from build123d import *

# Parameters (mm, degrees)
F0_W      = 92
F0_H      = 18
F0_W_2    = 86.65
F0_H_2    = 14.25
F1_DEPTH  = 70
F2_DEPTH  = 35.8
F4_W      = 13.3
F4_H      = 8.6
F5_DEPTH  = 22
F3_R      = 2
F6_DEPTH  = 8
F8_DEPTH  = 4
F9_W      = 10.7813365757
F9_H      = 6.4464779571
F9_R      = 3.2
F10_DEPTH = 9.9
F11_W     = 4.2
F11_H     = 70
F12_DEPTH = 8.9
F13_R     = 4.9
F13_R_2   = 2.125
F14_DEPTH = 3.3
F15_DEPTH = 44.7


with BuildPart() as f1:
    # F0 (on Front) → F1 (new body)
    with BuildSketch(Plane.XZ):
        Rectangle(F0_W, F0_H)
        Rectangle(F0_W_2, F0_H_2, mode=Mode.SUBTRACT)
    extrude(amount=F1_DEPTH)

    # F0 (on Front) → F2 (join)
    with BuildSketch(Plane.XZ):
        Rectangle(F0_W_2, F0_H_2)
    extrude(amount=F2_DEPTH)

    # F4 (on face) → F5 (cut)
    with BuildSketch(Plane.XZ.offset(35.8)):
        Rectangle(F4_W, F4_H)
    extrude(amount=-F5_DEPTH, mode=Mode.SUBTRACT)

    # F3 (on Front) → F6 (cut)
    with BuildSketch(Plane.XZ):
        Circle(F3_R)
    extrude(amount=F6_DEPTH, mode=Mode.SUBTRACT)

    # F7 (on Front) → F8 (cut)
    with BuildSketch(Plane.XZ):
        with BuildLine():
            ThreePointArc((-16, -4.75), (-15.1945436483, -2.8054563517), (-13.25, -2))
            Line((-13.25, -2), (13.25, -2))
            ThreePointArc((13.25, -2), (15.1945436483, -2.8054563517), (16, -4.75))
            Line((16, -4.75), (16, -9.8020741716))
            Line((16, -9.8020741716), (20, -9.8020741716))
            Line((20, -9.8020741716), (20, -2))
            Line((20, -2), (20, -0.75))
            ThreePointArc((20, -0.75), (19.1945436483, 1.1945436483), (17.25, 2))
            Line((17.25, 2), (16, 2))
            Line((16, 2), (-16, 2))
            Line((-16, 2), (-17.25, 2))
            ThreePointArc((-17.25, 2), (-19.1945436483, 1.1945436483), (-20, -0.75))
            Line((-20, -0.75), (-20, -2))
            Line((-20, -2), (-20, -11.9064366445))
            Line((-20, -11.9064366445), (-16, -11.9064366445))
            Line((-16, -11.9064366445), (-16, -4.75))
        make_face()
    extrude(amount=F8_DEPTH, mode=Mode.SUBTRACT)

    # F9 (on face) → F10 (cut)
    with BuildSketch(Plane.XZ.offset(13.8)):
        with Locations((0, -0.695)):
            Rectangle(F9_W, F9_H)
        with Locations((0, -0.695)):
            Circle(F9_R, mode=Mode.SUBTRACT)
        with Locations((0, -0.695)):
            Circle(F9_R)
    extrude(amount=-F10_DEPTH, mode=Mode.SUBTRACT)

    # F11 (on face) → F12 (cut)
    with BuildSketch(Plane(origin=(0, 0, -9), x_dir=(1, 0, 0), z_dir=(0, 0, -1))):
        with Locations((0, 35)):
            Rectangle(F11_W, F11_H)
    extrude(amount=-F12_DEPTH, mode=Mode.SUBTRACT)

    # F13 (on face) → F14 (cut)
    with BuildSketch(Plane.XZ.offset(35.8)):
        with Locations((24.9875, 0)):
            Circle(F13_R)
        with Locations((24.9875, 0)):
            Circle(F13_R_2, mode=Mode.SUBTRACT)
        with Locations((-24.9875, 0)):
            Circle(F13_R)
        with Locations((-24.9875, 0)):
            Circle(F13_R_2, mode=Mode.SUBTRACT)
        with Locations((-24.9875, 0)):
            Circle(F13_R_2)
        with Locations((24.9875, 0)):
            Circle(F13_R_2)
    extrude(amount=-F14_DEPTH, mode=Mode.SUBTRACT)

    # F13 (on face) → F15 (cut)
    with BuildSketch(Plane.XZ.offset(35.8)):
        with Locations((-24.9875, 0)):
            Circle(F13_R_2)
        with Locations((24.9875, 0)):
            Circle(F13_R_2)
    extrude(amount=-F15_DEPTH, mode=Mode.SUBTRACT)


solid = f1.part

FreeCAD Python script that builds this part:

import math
import FreeCAD as App
import Part
import Sketcher

V = App.Vector
Q = App.Units.Quantity

doc = App.newDocument("Part")
params = doc.addObject("Spreadsheet::Sheet", "Params")
for row, (alias, value) in enumerate([
    ("sketch1_width", "92 mm"),
    ("sketch1_height", "18 mm"),
    ("sketch1_width2", "86.65 mm"),
    ("sketch1_height2", "14.25 mm"),
    ("pad1_length", "70 mm"),
    ("sketch2_width", "86.65 mm"),
    ("sketch2_height", "14.25 mm"),
    ("pad2_length", "35.8 mm"),
    ("sketch3_width", "13.3 mm"),
    ("sketch3_height", "8.6 mm"),
    ("pocket1_length", "22 mm"),
    ("sketch4_diameter", "4 mm"),
    ("pocket2_length", "8 mm"),
    ("sketch5_width", "4 mm"),
    ("sketch5_radius", "2.75 mm"),
    ("sketch5_width2", "26.5 mm"),
    ("pocket3_length", "4 mm"),
    ("pocket4_length", "9.9 mm"),
    ("sketch7_height", "70 mm"),
    ("sketch7_width", "4.2 mm"),
    ("pocket5_length", "8.9 mm"),
    ("sketch8_diameter", "9.8 mm"),
    ("pocket6_length", "3.3 mm"),
    ("sketch9_diameter", "4.25 mm"),
    ("pocket7_length", "44.7 mm"),
], start=1):
    params.set(f"A{row}", alias)
    params.set(f"B{row}", "=" + value)
    params.setAlias(f"B{row}", alias)

body = doc.addObject("PartDesign::Body", "Body")

# Sketch on XZ plane
sketch1 = body.newObject("Sketcher::SketchObject", "Sketch")
sketch1.AttachmentSupport = (doc.getObject("XZ_Plane"), [""])
sketch1.MapMode = "FlatFace"
sketch1.addGeometry([
    Part.LineSegment(V(-46, 9, 0), V(-46, -9, 0)),  # 0
    Part.LineSegment(V(-46, -9, 0), V(46, -9, 0)),  # 1
    Part.LineSegment(V(46, -9, 0), V(46, 9, 0)),  # 2
    Part.LineSegment(V(46, 9, 0), V(-46, 9, 0)),  # 3
    Part.LineSegment(V(43, -7, 0), V(-43, -7, 0)),  # 4
    Part.LineSegment(V(-43, -7, 0), V(-43, 7, 0)),  # 5
    Part.LineSegment(V(-43, 7, 0), V(43, 7, 0)),  # 6
    Part.LineSegment(V(43, 7, 0), V(43, -7, 0)),  # 7
], False)
sketch1.addConstraint([
    Sketcher.Constraint("Coincident", 0, 2, 1, 1),
    Sketcher.Constraint("Coincident", 1, 2, 2, 1),
    Sketcher.Constraint("Coincident", 2, 2, 3, 1),
    Sketcher.Constraint("Coincident", 3, 2, 0, 1),
    Sketcher.Constraint("Coincident", 4, 2, 5, 1),
    Sketcher.Constraint("Coincident", 5, 2, 6, 1),
    Sketcher.Constraint("Coincident", 6, 2, 7, 1),
    Sketcher.Constraint("Coincident", 7, 2, 4, 1),
    Sketcher.Constraint("Vertical", 0),
    Sketcher.Constraint("Horizontal", 1),
    Sketcher.Constraint("Vertical", 2),
    Sketcher.Constraint("Horizontal", 3),
    Sketcher.Constraint("Horizontal", 4),
    Sketcher.Constraint("Vertical", 5),
    Sketcher.Constraint("Horizontal", 6),
    Sketcher.Constraint("Vertical", 7),
    Sketcher.Constraint("Symmetric", 0, 2, 2, 2, -1, 1),
    Sketcher.Constraint("Symmetric", 4, 2, 6, 2, -1, 1),
    Sketcher.Constraint("DistanceX", 1, 1, 1, 2, Q("92 mm")),
    Sketcher.Constraint("DistanceY", 0, 2, 0, 1, Q("18 mm")),
    Sketcher.Constraint("DistanceX", 4, 2, 4, 1, Q("86.65 mm")),
    Sketcher.Constraint("DistanceY", 5, 1, 5, 2, Q("14.25 mm")),
])
sketch1.setExpression("Constraints[18]", "Params.sketch1_width")
sketch1.setExpression("Constraints[19]", "Params.sketch1_height")
sketch1.setExpression("Constraints[20]", "Params.sketch1_width2")
sketch1.setExpression("Constraints[21]", "Params.sketch1_height2")
pad1 = body.newObject("PartDesign::Pad", "Pad")
pad1.Profile = sketch1
pad1.setExpression("Length", "Params.pad1_length")

# Sketch on XZ plane
sketch2 = body.newObject("Sketcher::SketchObject", "Sketch001")
sketch2.AttachmentSupport = (doc.getObject("XZ_Plane"), [""])
sketch2.MapMode = "FlatFace"
sketch2.addGeometry([
    Part.LineSegment(V(-43, 7, 0), V(-43, -7, 0)),
    Part.LineSegment(V(-43, -7, 0), V(43, -7, 0)),
    Part.LineSegment(V(43, -7, 0), V(43, 7, 0)),
    Part.LineSegment(V(43, 7, 0), V(-43, 7, 0)),
], False)
sketch2.addConstraint([
    Sketcher.Constraint("Coincident", 0, 2, 1, 1),
    Sketcher.Constraint("Coincident", 1, 2, 2, 1),
    Sketcher.Constraint("Coincident", 2, 2, 3, 1),
    Sketcher.Constraint("Coincident", 3, 2, 0, 1),
    Sketcher.Constraint("Vertical", 0),
    Sketcher.Constraint("Horizontal", 1),
    Sketcher.Constraint("Vertical", 2),
    Sketcher.Constraint("Horizontal", 3),
    Sketcher.Constraint("Symmetric", 0, 2, 2, 2, -1, 1),
    Sketcher.Constraint("DistanceX", 1, 1, 1, 2, Q("86.65 mm")),
    Sketcher.Constraint("DistanceY", 0, 2, 0, 1, Q("14.25 mm")),
])
sketch2.setExpression("Constraints[9]", "Params.sketch2_width")
sketch2.setExpression("Constraints[10]", "Params.sketch2_height")
pad2 = body.newObject("PartDesign::Pad", "Pad001")
pad2.Profile = sketch2
pad2.setExpression("Length", "Params.pad2_length")

# Sketch on XZ plane
sketch3 = body.newObject("Sketcher::SketchObject", "Sketch002")
sketch3.AttachmentSupport = (doc.getObject("XZ_Plane"), [""])
sketch3.MapMode = "FlatFace"
sketch3.AttachmentOffset = App.Placement(V(0, 0, 35.8), App.Rotation())
sketch3.addGeometry([
    Part.LineSegment(V(-7, 4, 0), V(-7, -4, 0)),
    Part.LineSegment(V(-7, -4, 0), V(7, -4, 0)),
    Part.LineSegment(V(7, -4, 0), V(7, 4, 0)),
    Part.LineSegment(V(7, 4, 0), V(-7, 4, 0)),
], False)
sketch3.addConstraint([
    Sketcher.Constraint("Coincident", 0, 2, 1, 1),
    Sketcher.Constraint("Coincident", 1, 2, 2, 1),
    Sketcher.Constraint("Coincident", 2, 2, 3, 1),
    Sketcher.Constraint("Coincident", 3, 2, 0, 1),
    Sketcher.Constraint("Vertical", 0),
    Sketcher.Constraint("Horizontal", 1),
    Sketcher.Constraint("Vertical", 2),
    Sketcher.Constraint("Horizontal", 3),
    Sketcher.Constraint("Symmetric", 0, 2, 2, 2, -1, 1),
    Sketcher.Constraint("DistanceX", 1, 1, 1, 2, Q("13.3 mm")),
    Sketcher.Constraint("DistanceY", 0, 2, 0, 1, Q("8.6 mm")),
])
sketch3.setExpression("Constraints[9]", "Params.sketch3_width")
sketch3.setExpression("Constraints[10]", "Params.sketch3_height")
pocket1 = body.newObject("PartDesign::Pocket", "Pocket")
pocket1.Profile = sketch3
pocket1.setExpression("Length", "Params.pocket1_length")

# Sketch on XZ plane
sketch4 = body.newObject("Sketcher::SketchObject", "Sketch003")
sketch4.AttachmentSupport = (doc.getObject("XZ_Plane"), [""])
sketch4.MapMode = "FlatFace"
sketch4.addGeometry(Part.Circle(V(0, 0, 0), V(0, 0, 1), 2), False)
sketch4.addConstraint([
    Sketcher.Constraint("Coincident", 0, 3, -1, 1),
    Sketcher.Constraint("Diameter", 0, Q("4 mm")),
])
sketch4.setExpression("Constraints[1]", "Params.sketch4_diameter")
pocket2 = body.newObject("PartDesign::Pocket", "Pocket001")
pocket2.Profile = sketch4
pocket2.setExpression("Length", "Params.pocket2_length")
pocket2.Reversed = True

# Sketch on XZ plane
sketch5 = body.newObject("Sketcher::SketchObject", "Sketch004")
sketch5.AttachmentSupport = (doc.getObject("XZ_Plane"), [""])
sketch5.MapMode = "FlatFace"
sketch5.addGeometry([
    Part.ArcOfCircle(Part.Circle(V(-13.2, -4.8, 0), V(0, 0, 1), 2.8), math.radians(90), math.radians(180)),  # 0
    Part.LineSegment(V(-13.2, -2, 0), V(13.2, -2, 0)),  # 1
    Part.ArcOfCircle(Part.Circle(V(13.2, -4.8, 0), V(0, 0, 1), 2.8), math.radians(0), math.radians(90)),  # 2
    Part.LineSegment(V(16, -4.8, 0), V(16, -9.8, 0)),  # 3
    Part.LineSegment(V(16, -9.8, 0), V(20, -9.8, 0)),  # 4
    Part.LineSegment(V(20, -9.8, 0), V(20, -0.8, 0)),  # 5
    Part.ArcOfCircle(Part.Circle(V(17.2, -0.8, 0), V(0, 0, 1), 2.8), math.radians(0), math.radians(90)),  # 6
    Part.LineSegment(V(17.2, 2, 0), V(-17.2, 2, 0)),  # 7
    Part.ArcOfCircle(Part.Circle(V(-17.2, -0.8, 0), V(0, 0, 1), 2.8), math.radians(90), math.radians(180)),  # 8
    Part.LineSegment(V(-20, -0.8, 0), V(-20, -11.9, 0)),  # 9
    Part.LineSegment(V(-20, -11.9, 0), V(-16, -11.9, 0)),  # 10
    Part.LineSegment(V(-16, -11.9, 0), V(-16, -4.8, 0)),  # 11
], False)
sketch5.addConstraint([
    Sketcher.Constraint("Tangent", 0, 1, 1, 1),
    Sketcher.Constraint("Tangent", 1, 2, 2, 2),
    Sketcher.Constraint("Tangent", 2, 1, 3, 1),
    Sketcher.Constraint("Coincident", 3, 2, 4, 1),
    Sketcher.Constraint("Coincident", 4, 2, 5, 1),
    Sketcher.Constraint("Tangent", 5, 2, 6, 1),
    Sketcher.Constraint("Tangent", 6, 2, 7, 1),
    Sketcher.Constraint("Tangent", 7, 2, 8, 1),
    Sketcher.Constraint("Tangent", 8, 2, 9, 1),
    Sketcher.Constraint("Coincident", 9, 2, 10, 1),
    Sketcher.Constraint("Coincident", 10, 2, 11, 1),
    Sketcher.Constraint("Tangent", 11, 2, 0, 2),
    Sketcher.Constraint("Horizontal", 1),
    Sketcher.Constraint("Vertical", 3),
    Sketcher.Constraint("Horizontal", 4),
    Sketcher.Constraint("Vertical", 5),
    Sketcher.Constraint("Horizontal", 7),
    Sketcher.Constraint("Vertical", 9),
    Sketcher.Constraint("Horizontal", 10),
    Sketcher.Constraint("Vertical", 11),
    Sketcher.Constraint("Equal", 0, 2),
    Sketcher.Constraint("Equal", 2, 6),
    Sketcher.Constraint("Equal", 6, 8),
    Sketcher.Constraint("Equal", 4, 10),
    Sketcher.Constraint("DistanceX", 4, 1, 4, 2, Q("4 mm")),
    Sketcher.Constraint("Radius", 0, Q("2.75 mm")),
    Sketcher.Constraint("DistanceX", 1, 1, 1, 2, Q("26.5 mm")),
    Sketcher.Constraint("DistanceY", 0, 1, -1, 1, Q("2 mm")),
    Sketcher.Constraint("DistanceX", -1, 1, 2, 1, Q("16 mm")),
    Sketcher.Constraint("DistanceY", -1, 1, 6, 2, Q("2 mm")),
    Sketcher.Constraint("DistanceY", 3, 2, 3, 1, Q("5.052074 mm")),
    Sketcher.Constraint("DistanceY", 9, 2, 9, 1, Q("11.156437 mm")),
])
sketch5.setExpression("Constraints[24]", "Params.sketch5_width")
sketch5.setExpression("Constraints[25]", "Params.sketch5_radius")
sketch5.setExpression("Constraints[26]", "Params.sketch5_width2")
pocket3 = body.newObject("PartDesign::Pocket", "Pocket002")
pocket3.Profile = sketch5
pocket3.setExpression("Length", "Params.pocket3_length")
pocket3.Reversed = True

# Sketch on XZ plane
sketch6 = body.newObject("Sketcher::SketchObject", "Sketch005")
sketch6.AttachmentSupport = (doc.getObject("XZ_Plane"), [""])
sketch6.MapMode = "FlatFace"
sketch6.AttachmentOffset = App.Placement(V(0, 0, 13.8), App.Rotation())
sketch6.addGeometry([
    Part.LineSegment(V(-5, 3, 0), V(-5, -4, 0)),
    Part.LineSegment(V(-5, -4, 0), V(5, -4, 0)),
    Part.LineSegment(V(5, -4, 0), V(5, 3, 0)),
    Part.LineSegment(V(5, 3, 0), V(-5, 3, 0)),
], False)
sketch6.addConstraint([
    Sketcher.Constraint("Coincident", 0, 2, 1, 1),
    Sketcher.Constraint("Coincident", 1, 2, 2, 1),
    Sketcher.Constraint("Coincident", 2, 2, 3, 1),
    Sketcher.Constraint("Coincident", 3, 2, 0, 1),
    Sketcher.Constraint("Vertical", 0),
    Sketcher.Constraint("Horizontal", 1),
    Sketcher.Constraint("Vertical", 2),
    Sketcher.Constraint("Horizontal", 3),
    Sketcher.Constraint("DistanceX", 1, 1, 1, 2, Q("10.781337 mm")),
    Sketcher.Constraint("DistanceY", 0, 2, 0, 1, Q("6.446478 mm")),
    Sketcher.Constraint("DistanceX", 0, 2, -1, 1, Q("5.390668 mm")),
    Sketcher.Constraint("DistanceY", 0, 2, -1, 1, Q("3.918239 mm")),
])
pocket4 = body.newObject("PartDesign::Pocket", "Pocket003")
pocket4.Profile = sketch6
pocket4.setExpression("Length", "Params.pocket4_length")

# Sketch on XY plane
sketch7 = body.newObject("Sketcher::SketchObject", "Sketch006")
sketch7.AttachmentSupport = (doc.getObject("XY_Plane"), [""])
sketch7.MapMode = "FlatFace"
sketch7.AttachmentOffset = App.Placement(V(0, 0, -9), App.Rotation())
sketch7.addGeometry([
    Part.LineSegment(V(-2.1, -70, 0), V(-2.1, 0, 0)),
    Part.LineSegment(V(-2.1, 0, 0), V(2.1, 0, 0)),
    Part.LineSegment(V(2.1, 0, 0), V(2.1, -70, 0)),
    Part.LineSegment(V(2.1, -70, 0), V(-2.1, -70, 0)),
], False)
sketch7.addConstraint([
    Sketcher.Constraint("Coincident", 0, 2, 1, 1),
    Sketcher.Constraint("Coincident", 1, 2, 2, 1),
    Sketcher.Constraint("Coincident", 2, 2, 3, 1),
    Sketcher.Constraint("Coincident", 3, 2, 0, 1),
    Sketcher.Constraint("Vertical", 0),
    Sketcher.Constraint("Horizontal", 1),
    Sketcher.Constraint("Vertical", 2),
    Sketcher.Constraint("Horizontal", 3),
    Sketcher.Constraint("Symmetric", 0, 2, 1, 2, -1, 1),
    Sketcher.Constraint("DistanceY", 0, 1, 0, 2, Q("70 mm")),
    Sketcher.Constraint("DistanceX", 1, 1, 1, 2, Q("4.2 mm")),
])
sketch7.setExpression("Constraints[9]", "Params.sketch7_height")
sketch7.setExpression("Constraints[10]", "Params.sketch7_width")
pocket5 = body.newObject("PartDesign::Pocket", "Pocket004")
pocket5.Profile = sketch7
pocket5.setExpression("Length", "Params.pocket5_length")
pocket5.Reversed = True

# Sketch on XZ plane
sketch8 = body.newObject("Sketcher::SketchObject", "Sketch007")
sketch8.AttachmentSupport = (doc.getObject("XZ_Plane"), [""])
sketch8.MapMode = "FlatFace"
sketch8.AttachmentOffset = App.Placement(V(0, 0, 35.8), App.Rotation())
sketch8.addGeometry([
    Part.Circle(V(25, 0, 0), V(0, 0, 1), 4.9),
    Part.Circle(V(-25, 0, 0), V(0, 0, 1), 4.9),
], False)
sketch8.addConstraint([
    Sketcher.Constraint("Equal", 0, 1),
    Sketcher.Constraint("Symmetric", 0, 3, 1, 3, -1, 1),
    Sketcher.Constraint("PointOnObject", 0, 3, -1),
    Sketcher.Constraint("Diameter", 0, Q("9.8 mm")),
    Sketcher.Constraint("DistanceX", 1, 3, 0, 3, Q("49.975 mm")),
])
sketch8.setExpression("Constraints[3]", "Params.sketch8_diameter")
pocket6 = body.newObject("PartDesign::Pocket", "Pocket005")
pocket6.Profile = sketch8
pocket6.setExpression("Length", "Params.pocket6_length")

# Sketch on XZ plane
sketch9 = body.newObject("Sketcher::SketchObject", "Sketch008")
sketch9.AttachmentSupport = (doc.getObject("XZ_Plane"), [""])
sketch9.MapMode = "FlatFace"
sketch9.AttachmentOffset = App.Placement(V(0, 0, 35.8), App.Rotation())
sketch9.addGeometry([
    Part.Circle(V(-25, 0, 0), V(0, 0, 1), 2.1),
    Part.Circle(V(25, 0, 0), V(0, 0, 1), 2.1),
], False)
sketch9.addConstraint([
    Sketcher.Constraint("Equal", 0, 1),
    Sketcher.Constraint("Symmetric", 0, 3, 1, 3, -1, 1),
    Sketcher.Constraint("PointOnObject", 0, 3, -1),
    Sketcher.Constraint("Diameter", 0, Q("4.25 mm")),
    Sketcher.Constraint("DistanceX", 0, 3, 1, 3, Q("49.975 mm")),
])
sketch9.setExpression("Constraints[3]", "Params.sketch9_diameter")
pocket7 = body.newObject("PartDesign::Pocket", "Pocket006")
pocket7.Profile = sketch9
pocket7.setExpression("Length", "Params.pocket7_length")

doc.recompute()
